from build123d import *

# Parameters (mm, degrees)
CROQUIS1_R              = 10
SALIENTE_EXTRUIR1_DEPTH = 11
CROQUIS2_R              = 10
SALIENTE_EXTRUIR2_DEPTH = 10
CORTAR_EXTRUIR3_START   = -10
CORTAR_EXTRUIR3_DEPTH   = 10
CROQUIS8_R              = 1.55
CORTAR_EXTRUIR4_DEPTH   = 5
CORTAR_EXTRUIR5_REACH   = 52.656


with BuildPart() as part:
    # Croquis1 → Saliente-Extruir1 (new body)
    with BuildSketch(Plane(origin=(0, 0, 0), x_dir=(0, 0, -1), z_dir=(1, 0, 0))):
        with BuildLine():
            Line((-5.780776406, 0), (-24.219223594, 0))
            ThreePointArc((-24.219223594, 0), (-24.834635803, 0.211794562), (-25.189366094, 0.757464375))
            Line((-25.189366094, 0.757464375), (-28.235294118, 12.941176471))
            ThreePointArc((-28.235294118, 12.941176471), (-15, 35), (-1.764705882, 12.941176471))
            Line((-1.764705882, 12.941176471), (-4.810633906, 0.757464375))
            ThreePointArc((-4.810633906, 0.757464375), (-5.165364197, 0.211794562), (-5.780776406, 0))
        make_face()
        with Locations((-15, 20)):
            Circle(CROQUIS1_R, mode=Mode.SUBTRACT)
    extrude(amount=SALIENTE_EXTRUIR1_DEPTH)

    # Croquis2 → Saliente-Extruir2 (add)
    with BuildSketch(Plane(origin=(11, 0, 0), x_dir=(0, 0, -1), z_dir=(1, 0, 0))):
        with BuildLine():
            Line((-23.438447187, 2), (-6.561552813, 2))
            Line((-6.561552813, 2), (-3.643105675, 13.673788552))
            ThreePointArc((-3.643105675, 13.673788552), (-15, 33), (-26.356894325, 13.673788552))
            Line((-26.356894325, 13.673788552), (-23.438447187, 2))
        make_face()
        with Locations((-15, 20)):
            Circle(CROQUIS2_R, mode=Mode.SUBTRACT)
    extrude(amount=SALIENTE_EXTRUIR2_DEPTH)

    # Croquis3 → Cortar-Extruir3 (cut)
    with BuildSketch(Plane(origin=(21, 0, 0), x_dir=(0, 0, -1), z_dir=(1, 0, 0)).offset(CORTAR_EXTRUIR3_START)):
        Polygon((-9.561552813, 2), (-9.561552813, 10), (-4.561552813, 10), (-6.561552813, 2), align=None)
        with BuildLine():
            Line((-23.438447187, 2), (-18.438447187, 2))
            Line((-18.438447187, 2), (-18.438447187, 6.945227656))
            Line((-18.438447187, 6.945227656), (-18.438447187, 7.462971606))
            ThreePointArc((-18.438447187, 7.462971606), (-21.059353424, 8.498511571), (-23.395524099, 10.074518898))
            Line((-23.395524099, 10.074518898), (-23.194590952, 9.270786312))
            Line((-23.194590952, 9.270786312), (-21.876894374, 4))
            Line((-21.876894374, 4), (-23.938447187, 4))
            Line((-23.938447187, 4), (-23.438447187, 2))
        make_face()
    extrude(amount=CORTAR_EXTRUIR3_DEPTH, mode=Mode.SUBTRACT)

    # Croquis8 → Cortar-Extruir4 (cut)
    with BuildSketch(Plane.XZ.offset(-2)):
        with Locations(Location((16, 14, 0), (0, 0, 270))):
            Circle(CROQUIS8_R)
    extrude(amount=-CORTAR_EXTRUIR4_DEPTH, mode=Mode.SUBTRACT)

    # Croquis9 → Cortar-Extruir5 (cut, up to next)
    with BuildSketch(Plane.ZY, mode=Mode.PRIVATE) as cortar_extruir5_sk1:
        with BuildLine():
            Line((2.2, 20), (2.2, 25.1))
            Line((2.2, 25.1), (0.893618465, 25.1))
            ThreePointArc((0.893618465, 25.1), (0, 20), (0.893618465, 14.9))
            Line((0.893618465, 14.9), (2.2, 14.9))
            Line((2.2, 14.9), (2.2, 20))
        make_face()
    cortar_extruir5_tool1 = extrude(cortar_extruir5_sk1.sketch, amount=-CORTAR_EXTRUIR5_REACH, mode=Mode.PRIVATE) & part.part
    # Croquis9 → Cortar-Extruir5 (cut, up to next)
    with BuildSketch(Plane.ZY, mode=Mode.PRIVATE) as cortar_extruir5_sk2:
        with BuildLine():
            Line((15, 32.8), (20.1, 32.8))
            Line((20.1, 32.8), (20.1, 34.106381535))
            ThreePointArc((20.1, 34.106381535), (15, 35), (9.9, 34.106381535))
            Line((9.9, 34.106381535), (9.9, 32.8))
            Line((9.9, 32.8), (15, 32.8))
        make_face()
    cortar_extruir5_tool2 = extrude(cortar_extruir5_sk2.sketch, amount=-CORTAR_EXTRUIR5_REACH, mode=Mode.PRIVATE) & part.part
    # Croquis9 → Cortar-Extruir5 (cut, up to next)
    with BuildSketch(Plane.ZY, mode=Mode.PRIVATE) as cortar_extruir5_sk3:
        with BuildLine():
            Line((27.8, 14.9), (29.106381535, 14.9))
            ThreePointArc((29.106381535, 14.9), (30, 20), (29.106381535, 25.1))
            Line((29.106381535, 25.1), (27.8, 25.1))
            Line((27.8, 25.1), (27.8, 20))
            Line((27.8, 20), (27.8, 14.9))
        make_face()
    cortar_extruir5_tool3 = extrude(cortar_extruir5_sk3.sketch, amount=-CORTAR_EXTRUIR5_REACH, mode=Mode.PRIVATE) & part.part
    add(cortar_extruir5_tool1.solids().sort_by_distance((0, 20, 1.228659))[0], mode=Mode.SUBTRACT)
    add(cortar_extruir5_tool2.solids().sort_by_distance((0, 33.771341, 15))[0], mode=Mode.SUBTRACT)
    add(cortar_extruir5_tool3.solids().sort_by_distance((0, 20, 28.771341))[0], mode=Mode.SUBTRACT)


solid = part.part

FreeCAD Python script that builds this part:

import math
import FreeCAD as App
import Part
import Sketcher

V = App.Vector
Q = App.Units.Quantity

doc = App.newDocument("Part")
params = doc.addObject("Spreadsheet::Sheet", "Params")
for row, (alias, value) in enumerate([
    ("sketch1_diameter", "20 mm"),
    ("sketch1_radius", "1 mm"),
    ("sketch1_radius2", "15 mm"),
    ("pad1_length", "11 mm"),
    ("sketch2_diameter", "20 mm"),
    ("sketch2_radius", "13 mm"),
    ("pad2_length", "10 mm"),
    ("sketch3_radius", "13 mm"),
    ("sketch3_width", "8 mm"),
    ("sketch3_height", "3 mm"),
    ("sketch3_height2", "5 mm"),
    ("pocket1_length", "10 mm"),
    ("sketch4_diameter", "3.1 mm"),
    ("pocket2_length", "5 mm"),
    ("sketch5_radius", "15 mm"),
    ("sketch5_width", "10.2 mm"),
    ("pocket3_length", "21 mm"),
    ("sketch6_radius", "15 mm"),
    ("sketch6_height", "10.2 mm"),
    ("pocket4_length", "21 mm"),
    ("sketch7_radius", "15 mm"),
    ("sketch7_width", "10.2 mm"),
    ("pocket5_length", "21 mm"),
], start=1):
    params.set(f"A{row}", alias)
    params.set(f"B{row}", "=" + value)
    params.setAlias(f"B{row}", alias)

body = doc.addObject("PartDesign::Body", "Body")

sketch1 = body.newObject("Sketcher::SketchObject", "Sketch")
sketch1.AttachmentSupport = (doc.getObject("YZ_Plane"), [""])
sketch1.MapMode = "FlatFace"
sketch1.addGeometry([
    Part.LineSegment(V(0, 24.219224, 0), V(0, 5.780776, 0)),
    Part.ArcOfCircle(Part.Circle(V(1, 5.780776, 0), V(0, 0, 1), 1), math.radians(-180), math.radians(-104.036244)),
    Part.LineSegment(V(0.757464, 4.810634, 0), V(12.941176, 1.764706, 0)),
    Part.ArcOfCircle(Part.Circle(V(20, 15, 0), V(0, 0, 1), 15), math.radians(-118.072487), math.radians(118.072487)),
    Part.LineSegment(V(12.941176, 28.235294, 0), V(0.757464, 25.189366, 0)),
    Part.ArcOfCircle(Part.Circle(V(1, 24.219224, 0), V(0, 0, 1), 1), math.radians(104.036244), math.radians(180)),
    Part.Circle(V(20, 15, 0), V(0, 0, 1), 10),
], False)
sketch1.addConstraint([
    Sketcher.Constraint("Tangent", 0, 2, 1, 1),
    Sketcher.Constraint("Tangent", 1, 2, 2, 1),
    Sketcher.Constraint("Coincident", 2, 2, 3, 1),
    Sketcher.Constraint("Coincident", 3, 2, 4, 1),
    Sketcher.Constraint("Tangent", 4, 2, 5, 1),
    Sketcher.Constraint("Tangent", 5, 2, 0, 1),
    Sketcher.Constraint("Vertical", 0),
    Sketcher.Constraint("Coincident", 6, 3, 3, 3),
    Sketcher.Constraint("Equal", 1, 5),
    Sketcher.Constraint("PointOnObject", 0, 2, -2),
    Sketcher.Constraint("Vertical", 2, 2, 3, 2),
    Sketcher.Constraint("Vertical", 1, 2, 4, 2),
    Sketcher.Constraint("Diameter", 6, Q("20 mm")),
    Sketcher.Constraint("Radius", 1, Q("1 mm")),
    Sketcher.Constraint("Radius", 3, Q("15 mm")),
    Sketcher.Constraint("DistanceX", -1, 1, 3, 3, Q("20 mm")),
    Sketcher.Constraint("DistanceY", -1, 1, 3, 3, Q("15 mm")),
    Sketcher.Constraint("DistanceY", 0, 2, 0, 1, Q("18.438447 mm")),
    Sketcher.Constraint("DistanceY", 2, 2, 1, 2, Q("3.045928 mm")),
])
sketch1.setExpression("Constraints[12]", "Params.sketch1_diameter")
sketch1.setExpression("Constraints[13]", "Params.sketch1_radius")
sketch1.setExpression("Constraints[14]", "Params.sketch1_radius2")
pad1 = body.newObject("PartDesign::Pad", "Pad")
pad1.Profile = sketch1
pad1.setExpression("Length", "Params.pad1_length")

sketch2 = body.newObject("Sketcher::SketchObject", "Sketch001")
sketch2.AttachmentSupport = (doc.getObject("YZ_Plane"), [""])
sketch2.MapMode = "FlatFace"
sketch2.AttachmentOffset = App.Placement(V(0, 0, 11), App.Rotation())
sketch2.addGeometry([
    Part.LineSegment(V(2, 23.438447, 0), V(2, 6.561553, 0)),
    Part.LineSegment(V(2, 6.561553, 0), V(13.673789, 3.643106, 0)),
    Part.ArcOfCircle(Part.Circle(V(20, 15, 0), V(0, 0, 1), 13), math.radians(-119.119429), math.radians(119.119429)),
    Part.LineSegment(V(13.673789, 26.356894, 0), V(2, 23.438447, 0)),
    Part.Circle(V(20, 15, 0), V(0, 0, 1), 10),
], False)
sketch2.addConstraint([
    Sketcher.Constraint("Coincident", 0, 2, 1, 1),
    Sketcher.Constraint("Coincident", 1, 2, 2, 1),
    Sketcher.Constraint("Coincident", 2, 2, 3, 1),
    Sketcher.Constraint("Coincident", 3, 2, 0, 1),
    Sketcher.Constraint("Vertical", 0),
    Sketcher.Constraint("Coincident", 4, 3, 2, 3),
    Sketcher.Constraint("Vertical", 1, 2, 2, 2),
    Sketcher.Constraint("Equal", 1, 3),
    Sketcher.Constraint("Diameter", 4, Q("20 mm")),
    Sketcher.Constraint("Radius", 2, Q("13 mm")),
    Sketcher.Constraint("DistanceX", -1, 1, 2, 3, Q("20 mm")),
    Sketcher.Constraint("DistanceY", -1, 1, 2, 3, Q("15 mm")),
    Sketcher.Constraint("DistanceX", -1, 1, 0, 2, Q("2 mm")),
    Sketcher.Constraint("DistanceY", 0, 2, 0, 1, Q("16.876894 mm")),
    Sketcher.Constraint("DistanceX", -1, 1, 1, 2, Q("13.673789 mm")),
])
sketch2.setExpression("Constraints[8]", "Params.sketch2_diameter")
sketch2.setExpression("Constraints[9]", "Params.sketch2_radius")
pad2 = body.newObject("PartDesign::Pad", "Pad001")
pad2.Profile = sketch2
pad2.setExpression("Length", "Params.pad2_length")

sketch3 = body.newObject("Sketcher::SketchObject", "Sketch002")
sketch3.AttachmentSupport = (doc.getObject("YZ_Plane"), [""])
sketch3.MapMode = "FlatFace"
sketch3.AttachmentOffset = App.Placement(V(0, 0, 11), App.Rotation())
sketch3.addGeometry([
    Part.LineSegment(V(10, 9.561553, 0), V(2, 9.561553, 0)),
    Part.LineSegment(V(2, 9.561553, 0), V(2, 6.561553, 0)),
    Part.LineSegment(V(2, 6.561553, 0), V(10, 4.561553, 0)),
    Part.LineSegment(V(10, 4.561553, 0), V(10, 9.561553, 0)),
    Part.LineSegment(V(2, 23.438447, 0), V(2, 18.438447, 0)),
    Part.LineSegment(V(2, 18.438447, 0), V(7.462972, 18.438447, 0)),
    Part.ArcOfCircle(Part.Circle(V(20, 15, 0), V(0, 0, 1), 13), math.radians(139.7736), math.radians(164.662997)),
    Part.LineSegment(V(10.074519, 23.395524, 0), V(9.270786, 23.194591, 0)),
    Part.LineSegment(V(9.270786, 23.194591, 0), V(4, 21.876894, 0)),
    Part.LineSegment(V(4, 21.876894, 0), V(4, 23.938447, 0)),
    Part.LineSegment(V(4, 23.938447, 0), V(2, 23.438447, 0)),
], False)
sketch3.addConstraint([
    Sketcher.Constraint("Coincident", 0, 2, 1, 1),
    Sketcher.Constraint("Coincident", 1, 2, 2, 1),
    Sketcher.Constraint("Coincident", 2, 2, 3, 1),
    Sketcher.Constraint("Coincident", 3, 2, 0, 1),
    Sketcher.Constraint("Coincident", 4, 2, 5, 1),
    Sketcher.Constraint("Coincident", 5, 2, 6, 2),
    Sketcher.Constraint("Coincident", 6, 1, 7, 1),
    Sketcher.Constraint("Coincident", 7, 2, 8, 1),
    Sketcher.Constraint("Coincident", 8, 2, 9, 1),
    Sketcher.Constraint("Coincident", 9, 2, 10, 1),
    Sketcher.Constraint("Coincident", 10, 2, 4, 1),
    Sketcher.Constraint("Horizontal", 0),
    Sketcher.Constraint("Vertical", 1),
    Sketcher.Constraint("Vertical", 3),
    Sketcher.Constraint("Vertical", 4),
    Sketcher.Constraint("Horizontal", 5),
    Sketcher.Constraint("Vertical", 9),
    Sketcher.Constraint("Parallel", 7, 8),
    Sketcher.Constraint("Parallel", 8, 10),
    Sketcher.Constraint("Vertical", 1, 2, 4, 2),
    Sketcher.Constraint("Equal", 3, 4),
    Sketcher.Constraint("Radius", 6, Q("13 mm")),
    Sketcher.Constraint("DistanceX", 0, 2, 0, 1, Q("8 mm")),
    Sketcher.Constraint("DistanceY", 1, 2, 1, 1, Q("3 mm")),
    Sketcher.Constraint("DistanceY", 3, 1, 3, 2, Q("5 mm")),
    Sketcher.Constraint("DistanceX", -1, 1, 6, 3, Q("20 mm")),
    Sketcher.Constraint("DistanceY", -1, 1, 6, 3, Q("15 mm")),
    Sketcher.Constraint("DistanceX", -1, 1, 0, 2, Q("2 mm")),
    Sketcher.Constraint("DistanceX", -1, 1, 8, 2, Q("4 mm")),
    Sketcher.Constraint("DistanceY", 4, 2, 9, 2, Q("5.5 mm")),
    Sketcher.Constraint("DistanceX", 5, 1, 5, 2, Q("5.462972 mm")),
    Sketcher.Constraint("Distance", 7, Q("0.828469 mm")),
    Sketcher.Constraint("DistanceY", 9, 1, 9, 2, Q("2.061553 mm")),
    Sketcher.Constraint("DistanceY", 3, 2, 6, 1, Q("13.833971 mm")),
])
sketch3.setExpression("Constraints[21]", "Params.sketch3_radius")
sketch3.setExpression("Constraints[22]", "Params.sketch3_width")
sketch3.setExpression("Constraints[23]", "Params.sketch3_height")
sketch3.setExpression("Constraints[24]", "Params.sketch3_height2")
pocket1 = body.newObject("PartDesign::Pocket", "Pocket")
pocket1.Profile = sketch3
pocket1.setExpression("Length", "Params.pocket1_length")
pocket1.Reversed = True

sketch4 = body.newObject("Sketcher::SketchObject", "Sketch003")
sketch4.AttachmentSupport = (doc.getObject("XZ_Plane"), [""])
sketch4.MapMode = "FlatFace"
sketch4.AttachmentOffset = App.Placement(V(0, 0, -2), App.Rotation())
sketch4.addGeometry(Part.Circle(V(16, 14, 0), V(0, 0, 1), 1.55), False)
sketch4.addConstraint([
    Sketcher.Constraint("Diameter", 0, Q("3.1 mm")),
    Sketcher.Constraint("DistanceX", -1, 1, 0, 3, Q("16 mm")),
    Sketcher.Constraint("DistanceY", -1, 1, 0, 3, Q("14 mm")),
])
sketch4.setExpression("Constraints[0]", "Params.sketch4_diameter")
pocket2 = body.newObject("PartDesign::Pocket", "Pocket001")
pocket2.Profile = sketch4
pocket2.setExpression("Length", "Params.pocket2_length")

sketch5 = body.newObject("Sketcher::SketchObject", "Sketch004")
sketch5.AttachmentSupport = (doc.getObject("YZ_Plane"), [""])
sketch5.MapMode = "FlatFace"
sketch5.addGeometry([
    Part.LineSegment(V(25.1, 2.2, 0), V(25.1, 0.893618, 0)),
    Part.ArcOfCircle(Part.Circle(V(20, 15, 0), V(0, 0, 1), 15), math.radians(-109.876874), math.radians(-70.123126)),
    Part.LineSegment(V(14.9, 0.893618, 0), V(14.9, 2.2, 0)),
    Part.LineSegment(V(14.9, 2.2, 0), V(25.1, 2.2, 0)),
], False)
sketch5.addConstraint([
    Sketcher.Constraint("Coincident", 0, 2, 1, 2),
    Sketcher.Constraint("Coincident", 1, 1, 2, 1),
    Sketcher.Constraint("Coincident", 2, 2, 3, 1),
    Sketcher.Constraint("Coincident", 3, 2, 0, 1),
    Sketcher.Constraint("Vertical", 0),
    Sketcher.Constraint("Vertical", 2),
    Sketcher.Constraint("Horizontal", 3),
    Sketcher.Constraint("Horizontal", 0, 2, 1, 1),
    Sketcher.Constraint("Radius", 1, Q("15 mm")),
    Sketcher.Constraint("DistanceX", 3, 1, 3, 2, Q("10.2 mm")),
    Sketcher.Constraint("DistanceX", -1, 1, 1, 3, Q("20 mm")),
    Sketcher.Constraint("DistanceY", -1, 1, 1, 3, Q("15 mm")),
    Sketcher.Constraint("DistanceY", -1, 1, 2, 2, Q("2.2 mm")),
])
sketch5.setExpression("Constraints[8]", "Params.sketch5_radius")
sketch5.setExpression("Constraints[9]", "Params.sketch5_width")
pocket3 = body.newObject("PartDesign::Pocket", "Pocket002")
pocket3.Profile = sketch5
pocket3.setExpression("Length", "Params.pocket3_length")
pocket3.Reversed = True

sketch6 = body.newObject("Sketcher::SketchObject", "Sketch005")
sketch6.AttachmentSupport = (doc.getObject("YZ_Plane"), [""])
sketch6.MapMode = "FlatFace"
sketch6.addGeometry([
    Part.LineSegment(V(32.8, 20.1, 0), V(34.106382, 20.1, 0)),
    Part.ArcOfCircle(Part.Circle(V(20, 15, 0), V(0, 0, 1), 15), math.radians(-19.876874), math.radians(19.876874)),
    Part.LineSegment(V(34.106382, 9.9, 0), V(32.8, 9.9, 0)),
    Part.LineSegment(V(32.8, 9.9, 0), V(32.8, 20.1, 0)),
], False)
sketch6.addConstraint([
    Sketcher.Constraint("Coincident", 0, 2, 1, 2),
    Sketcher.Constraint("Coincident", 1, 1, 2, 1),
    Sketcher.Constraint("Coincident", 2, 2, 3, 1),
    Sketcher.Constraint("Coincident", 3, 2, 0, 1),
    Sketcher.Constraint("Horizontal", 0),
    Sketcher.Constraint("Horizontal", 2),
    Sketcher.Constraint("Vertical", 3),
    Sketcher.Constraint("Vertical", 0, 2, 1, 1),
    Sketcher.Constraint("Radius", 1, Q("15 mm")),
    Sketcher.Constraint("DistanceY", 3, 1, 3, 2, Q("10.2 mm")),
    Sketcher.Constraint("DistanceX", -1, 1, 1, 3, Q("20 mm")),
    Sketcher.Constraint("DistanceY", -1, 1, 1, 3, Q("15 mm")),
    Sketcher.Constraint("DistanceX", -1, 1, 2, 2, Q("32.8 mm")),
])
sketch6.setExpression("Constraints[8]", "Params.sketch6_radius")
sketch6.setExpression("Constraints[9]", "Params.sketch6_height")
pocket4 = body.newObject("PartDesign::Pocket", "Pocket003")
pocket4.Profile = sketch6
pocket4.setExpression("Length", "Params.pocket4_length")
pocket4.Reversed = True

sketch7 = body.newObject("Sketcher::SketchObject", "Sketch006")
sketch7.AttachmentSupport = (doc.getObject("YZ_Plane"), [""])
sketch7.MapMode = "FlatFace"
sketch7.addGeometry([
    Part.LineSegment(V(14.9, 27.8, 0), V(14.9, 29.106382, 0)),
    Part.ArcOfCircle(Part.Circle(V(20, 15, 0), V(0, 0, 1), 15), math.radians(70.123126), math.radians(109.876874)),
    Part.LineSegment(V(25.1, 29.106382, 0), V(25.1, 27.8, 0)),
    Part.LineSegment(V(25.1, 27.8, 0), V(14.9, 27.8, 0)),
], False)
sketch7.addConstraint([
    Sketcher.Constraint("Coincident", 0, 2, 1, 2),
    Sketcher.Constraint("Coincident", 1, 1, 2, 1),
    Sketcher.Constraint("Coincident", 2, 2, 3, 1),
    Sketcher.Constraint("Coincident", 3, 2, 0, 1),
    Sketcher.Constraint("Vertical", 0),
    Sketcher.Constraint("Vertical", 2),
    Sketcher.Constraint("Horizontal", 3),
    Sketcher.Constraint("Horizontal", 0, 2, 1, 1),
    Sketcher.Constraint("Radius", 1, Q("15 mm")),
    Sketcher.Constraint("DistanceX", 3, 2, 3, 1, Q("10.2 mm")),
    Sketcher.Constraint("DistanceX", -1, 1, 1, 3, Q("20 mm")),
    Sketcher.Constraint("DistanceY", -1, 1, 1, 3, Q("15 mm")),
    Sketcher.Constraint("DistanceY", -1, 1, 2, 2, Q("27.8 mm")),
])
sketch7.setExpression("Constraints[8]", "Params.sketch7_radius")
sketch7.setExpression("Constraints[9]", "Params.sketch7_width")
pocket5 = body.newObject("PartDesign::Pocket", "Pocket004")
pocket5.Profile = sketch7
pocket5.setExpression("Length", "Params.pocket5_length")
pocket5.Reversed = True

doc.recompute()
